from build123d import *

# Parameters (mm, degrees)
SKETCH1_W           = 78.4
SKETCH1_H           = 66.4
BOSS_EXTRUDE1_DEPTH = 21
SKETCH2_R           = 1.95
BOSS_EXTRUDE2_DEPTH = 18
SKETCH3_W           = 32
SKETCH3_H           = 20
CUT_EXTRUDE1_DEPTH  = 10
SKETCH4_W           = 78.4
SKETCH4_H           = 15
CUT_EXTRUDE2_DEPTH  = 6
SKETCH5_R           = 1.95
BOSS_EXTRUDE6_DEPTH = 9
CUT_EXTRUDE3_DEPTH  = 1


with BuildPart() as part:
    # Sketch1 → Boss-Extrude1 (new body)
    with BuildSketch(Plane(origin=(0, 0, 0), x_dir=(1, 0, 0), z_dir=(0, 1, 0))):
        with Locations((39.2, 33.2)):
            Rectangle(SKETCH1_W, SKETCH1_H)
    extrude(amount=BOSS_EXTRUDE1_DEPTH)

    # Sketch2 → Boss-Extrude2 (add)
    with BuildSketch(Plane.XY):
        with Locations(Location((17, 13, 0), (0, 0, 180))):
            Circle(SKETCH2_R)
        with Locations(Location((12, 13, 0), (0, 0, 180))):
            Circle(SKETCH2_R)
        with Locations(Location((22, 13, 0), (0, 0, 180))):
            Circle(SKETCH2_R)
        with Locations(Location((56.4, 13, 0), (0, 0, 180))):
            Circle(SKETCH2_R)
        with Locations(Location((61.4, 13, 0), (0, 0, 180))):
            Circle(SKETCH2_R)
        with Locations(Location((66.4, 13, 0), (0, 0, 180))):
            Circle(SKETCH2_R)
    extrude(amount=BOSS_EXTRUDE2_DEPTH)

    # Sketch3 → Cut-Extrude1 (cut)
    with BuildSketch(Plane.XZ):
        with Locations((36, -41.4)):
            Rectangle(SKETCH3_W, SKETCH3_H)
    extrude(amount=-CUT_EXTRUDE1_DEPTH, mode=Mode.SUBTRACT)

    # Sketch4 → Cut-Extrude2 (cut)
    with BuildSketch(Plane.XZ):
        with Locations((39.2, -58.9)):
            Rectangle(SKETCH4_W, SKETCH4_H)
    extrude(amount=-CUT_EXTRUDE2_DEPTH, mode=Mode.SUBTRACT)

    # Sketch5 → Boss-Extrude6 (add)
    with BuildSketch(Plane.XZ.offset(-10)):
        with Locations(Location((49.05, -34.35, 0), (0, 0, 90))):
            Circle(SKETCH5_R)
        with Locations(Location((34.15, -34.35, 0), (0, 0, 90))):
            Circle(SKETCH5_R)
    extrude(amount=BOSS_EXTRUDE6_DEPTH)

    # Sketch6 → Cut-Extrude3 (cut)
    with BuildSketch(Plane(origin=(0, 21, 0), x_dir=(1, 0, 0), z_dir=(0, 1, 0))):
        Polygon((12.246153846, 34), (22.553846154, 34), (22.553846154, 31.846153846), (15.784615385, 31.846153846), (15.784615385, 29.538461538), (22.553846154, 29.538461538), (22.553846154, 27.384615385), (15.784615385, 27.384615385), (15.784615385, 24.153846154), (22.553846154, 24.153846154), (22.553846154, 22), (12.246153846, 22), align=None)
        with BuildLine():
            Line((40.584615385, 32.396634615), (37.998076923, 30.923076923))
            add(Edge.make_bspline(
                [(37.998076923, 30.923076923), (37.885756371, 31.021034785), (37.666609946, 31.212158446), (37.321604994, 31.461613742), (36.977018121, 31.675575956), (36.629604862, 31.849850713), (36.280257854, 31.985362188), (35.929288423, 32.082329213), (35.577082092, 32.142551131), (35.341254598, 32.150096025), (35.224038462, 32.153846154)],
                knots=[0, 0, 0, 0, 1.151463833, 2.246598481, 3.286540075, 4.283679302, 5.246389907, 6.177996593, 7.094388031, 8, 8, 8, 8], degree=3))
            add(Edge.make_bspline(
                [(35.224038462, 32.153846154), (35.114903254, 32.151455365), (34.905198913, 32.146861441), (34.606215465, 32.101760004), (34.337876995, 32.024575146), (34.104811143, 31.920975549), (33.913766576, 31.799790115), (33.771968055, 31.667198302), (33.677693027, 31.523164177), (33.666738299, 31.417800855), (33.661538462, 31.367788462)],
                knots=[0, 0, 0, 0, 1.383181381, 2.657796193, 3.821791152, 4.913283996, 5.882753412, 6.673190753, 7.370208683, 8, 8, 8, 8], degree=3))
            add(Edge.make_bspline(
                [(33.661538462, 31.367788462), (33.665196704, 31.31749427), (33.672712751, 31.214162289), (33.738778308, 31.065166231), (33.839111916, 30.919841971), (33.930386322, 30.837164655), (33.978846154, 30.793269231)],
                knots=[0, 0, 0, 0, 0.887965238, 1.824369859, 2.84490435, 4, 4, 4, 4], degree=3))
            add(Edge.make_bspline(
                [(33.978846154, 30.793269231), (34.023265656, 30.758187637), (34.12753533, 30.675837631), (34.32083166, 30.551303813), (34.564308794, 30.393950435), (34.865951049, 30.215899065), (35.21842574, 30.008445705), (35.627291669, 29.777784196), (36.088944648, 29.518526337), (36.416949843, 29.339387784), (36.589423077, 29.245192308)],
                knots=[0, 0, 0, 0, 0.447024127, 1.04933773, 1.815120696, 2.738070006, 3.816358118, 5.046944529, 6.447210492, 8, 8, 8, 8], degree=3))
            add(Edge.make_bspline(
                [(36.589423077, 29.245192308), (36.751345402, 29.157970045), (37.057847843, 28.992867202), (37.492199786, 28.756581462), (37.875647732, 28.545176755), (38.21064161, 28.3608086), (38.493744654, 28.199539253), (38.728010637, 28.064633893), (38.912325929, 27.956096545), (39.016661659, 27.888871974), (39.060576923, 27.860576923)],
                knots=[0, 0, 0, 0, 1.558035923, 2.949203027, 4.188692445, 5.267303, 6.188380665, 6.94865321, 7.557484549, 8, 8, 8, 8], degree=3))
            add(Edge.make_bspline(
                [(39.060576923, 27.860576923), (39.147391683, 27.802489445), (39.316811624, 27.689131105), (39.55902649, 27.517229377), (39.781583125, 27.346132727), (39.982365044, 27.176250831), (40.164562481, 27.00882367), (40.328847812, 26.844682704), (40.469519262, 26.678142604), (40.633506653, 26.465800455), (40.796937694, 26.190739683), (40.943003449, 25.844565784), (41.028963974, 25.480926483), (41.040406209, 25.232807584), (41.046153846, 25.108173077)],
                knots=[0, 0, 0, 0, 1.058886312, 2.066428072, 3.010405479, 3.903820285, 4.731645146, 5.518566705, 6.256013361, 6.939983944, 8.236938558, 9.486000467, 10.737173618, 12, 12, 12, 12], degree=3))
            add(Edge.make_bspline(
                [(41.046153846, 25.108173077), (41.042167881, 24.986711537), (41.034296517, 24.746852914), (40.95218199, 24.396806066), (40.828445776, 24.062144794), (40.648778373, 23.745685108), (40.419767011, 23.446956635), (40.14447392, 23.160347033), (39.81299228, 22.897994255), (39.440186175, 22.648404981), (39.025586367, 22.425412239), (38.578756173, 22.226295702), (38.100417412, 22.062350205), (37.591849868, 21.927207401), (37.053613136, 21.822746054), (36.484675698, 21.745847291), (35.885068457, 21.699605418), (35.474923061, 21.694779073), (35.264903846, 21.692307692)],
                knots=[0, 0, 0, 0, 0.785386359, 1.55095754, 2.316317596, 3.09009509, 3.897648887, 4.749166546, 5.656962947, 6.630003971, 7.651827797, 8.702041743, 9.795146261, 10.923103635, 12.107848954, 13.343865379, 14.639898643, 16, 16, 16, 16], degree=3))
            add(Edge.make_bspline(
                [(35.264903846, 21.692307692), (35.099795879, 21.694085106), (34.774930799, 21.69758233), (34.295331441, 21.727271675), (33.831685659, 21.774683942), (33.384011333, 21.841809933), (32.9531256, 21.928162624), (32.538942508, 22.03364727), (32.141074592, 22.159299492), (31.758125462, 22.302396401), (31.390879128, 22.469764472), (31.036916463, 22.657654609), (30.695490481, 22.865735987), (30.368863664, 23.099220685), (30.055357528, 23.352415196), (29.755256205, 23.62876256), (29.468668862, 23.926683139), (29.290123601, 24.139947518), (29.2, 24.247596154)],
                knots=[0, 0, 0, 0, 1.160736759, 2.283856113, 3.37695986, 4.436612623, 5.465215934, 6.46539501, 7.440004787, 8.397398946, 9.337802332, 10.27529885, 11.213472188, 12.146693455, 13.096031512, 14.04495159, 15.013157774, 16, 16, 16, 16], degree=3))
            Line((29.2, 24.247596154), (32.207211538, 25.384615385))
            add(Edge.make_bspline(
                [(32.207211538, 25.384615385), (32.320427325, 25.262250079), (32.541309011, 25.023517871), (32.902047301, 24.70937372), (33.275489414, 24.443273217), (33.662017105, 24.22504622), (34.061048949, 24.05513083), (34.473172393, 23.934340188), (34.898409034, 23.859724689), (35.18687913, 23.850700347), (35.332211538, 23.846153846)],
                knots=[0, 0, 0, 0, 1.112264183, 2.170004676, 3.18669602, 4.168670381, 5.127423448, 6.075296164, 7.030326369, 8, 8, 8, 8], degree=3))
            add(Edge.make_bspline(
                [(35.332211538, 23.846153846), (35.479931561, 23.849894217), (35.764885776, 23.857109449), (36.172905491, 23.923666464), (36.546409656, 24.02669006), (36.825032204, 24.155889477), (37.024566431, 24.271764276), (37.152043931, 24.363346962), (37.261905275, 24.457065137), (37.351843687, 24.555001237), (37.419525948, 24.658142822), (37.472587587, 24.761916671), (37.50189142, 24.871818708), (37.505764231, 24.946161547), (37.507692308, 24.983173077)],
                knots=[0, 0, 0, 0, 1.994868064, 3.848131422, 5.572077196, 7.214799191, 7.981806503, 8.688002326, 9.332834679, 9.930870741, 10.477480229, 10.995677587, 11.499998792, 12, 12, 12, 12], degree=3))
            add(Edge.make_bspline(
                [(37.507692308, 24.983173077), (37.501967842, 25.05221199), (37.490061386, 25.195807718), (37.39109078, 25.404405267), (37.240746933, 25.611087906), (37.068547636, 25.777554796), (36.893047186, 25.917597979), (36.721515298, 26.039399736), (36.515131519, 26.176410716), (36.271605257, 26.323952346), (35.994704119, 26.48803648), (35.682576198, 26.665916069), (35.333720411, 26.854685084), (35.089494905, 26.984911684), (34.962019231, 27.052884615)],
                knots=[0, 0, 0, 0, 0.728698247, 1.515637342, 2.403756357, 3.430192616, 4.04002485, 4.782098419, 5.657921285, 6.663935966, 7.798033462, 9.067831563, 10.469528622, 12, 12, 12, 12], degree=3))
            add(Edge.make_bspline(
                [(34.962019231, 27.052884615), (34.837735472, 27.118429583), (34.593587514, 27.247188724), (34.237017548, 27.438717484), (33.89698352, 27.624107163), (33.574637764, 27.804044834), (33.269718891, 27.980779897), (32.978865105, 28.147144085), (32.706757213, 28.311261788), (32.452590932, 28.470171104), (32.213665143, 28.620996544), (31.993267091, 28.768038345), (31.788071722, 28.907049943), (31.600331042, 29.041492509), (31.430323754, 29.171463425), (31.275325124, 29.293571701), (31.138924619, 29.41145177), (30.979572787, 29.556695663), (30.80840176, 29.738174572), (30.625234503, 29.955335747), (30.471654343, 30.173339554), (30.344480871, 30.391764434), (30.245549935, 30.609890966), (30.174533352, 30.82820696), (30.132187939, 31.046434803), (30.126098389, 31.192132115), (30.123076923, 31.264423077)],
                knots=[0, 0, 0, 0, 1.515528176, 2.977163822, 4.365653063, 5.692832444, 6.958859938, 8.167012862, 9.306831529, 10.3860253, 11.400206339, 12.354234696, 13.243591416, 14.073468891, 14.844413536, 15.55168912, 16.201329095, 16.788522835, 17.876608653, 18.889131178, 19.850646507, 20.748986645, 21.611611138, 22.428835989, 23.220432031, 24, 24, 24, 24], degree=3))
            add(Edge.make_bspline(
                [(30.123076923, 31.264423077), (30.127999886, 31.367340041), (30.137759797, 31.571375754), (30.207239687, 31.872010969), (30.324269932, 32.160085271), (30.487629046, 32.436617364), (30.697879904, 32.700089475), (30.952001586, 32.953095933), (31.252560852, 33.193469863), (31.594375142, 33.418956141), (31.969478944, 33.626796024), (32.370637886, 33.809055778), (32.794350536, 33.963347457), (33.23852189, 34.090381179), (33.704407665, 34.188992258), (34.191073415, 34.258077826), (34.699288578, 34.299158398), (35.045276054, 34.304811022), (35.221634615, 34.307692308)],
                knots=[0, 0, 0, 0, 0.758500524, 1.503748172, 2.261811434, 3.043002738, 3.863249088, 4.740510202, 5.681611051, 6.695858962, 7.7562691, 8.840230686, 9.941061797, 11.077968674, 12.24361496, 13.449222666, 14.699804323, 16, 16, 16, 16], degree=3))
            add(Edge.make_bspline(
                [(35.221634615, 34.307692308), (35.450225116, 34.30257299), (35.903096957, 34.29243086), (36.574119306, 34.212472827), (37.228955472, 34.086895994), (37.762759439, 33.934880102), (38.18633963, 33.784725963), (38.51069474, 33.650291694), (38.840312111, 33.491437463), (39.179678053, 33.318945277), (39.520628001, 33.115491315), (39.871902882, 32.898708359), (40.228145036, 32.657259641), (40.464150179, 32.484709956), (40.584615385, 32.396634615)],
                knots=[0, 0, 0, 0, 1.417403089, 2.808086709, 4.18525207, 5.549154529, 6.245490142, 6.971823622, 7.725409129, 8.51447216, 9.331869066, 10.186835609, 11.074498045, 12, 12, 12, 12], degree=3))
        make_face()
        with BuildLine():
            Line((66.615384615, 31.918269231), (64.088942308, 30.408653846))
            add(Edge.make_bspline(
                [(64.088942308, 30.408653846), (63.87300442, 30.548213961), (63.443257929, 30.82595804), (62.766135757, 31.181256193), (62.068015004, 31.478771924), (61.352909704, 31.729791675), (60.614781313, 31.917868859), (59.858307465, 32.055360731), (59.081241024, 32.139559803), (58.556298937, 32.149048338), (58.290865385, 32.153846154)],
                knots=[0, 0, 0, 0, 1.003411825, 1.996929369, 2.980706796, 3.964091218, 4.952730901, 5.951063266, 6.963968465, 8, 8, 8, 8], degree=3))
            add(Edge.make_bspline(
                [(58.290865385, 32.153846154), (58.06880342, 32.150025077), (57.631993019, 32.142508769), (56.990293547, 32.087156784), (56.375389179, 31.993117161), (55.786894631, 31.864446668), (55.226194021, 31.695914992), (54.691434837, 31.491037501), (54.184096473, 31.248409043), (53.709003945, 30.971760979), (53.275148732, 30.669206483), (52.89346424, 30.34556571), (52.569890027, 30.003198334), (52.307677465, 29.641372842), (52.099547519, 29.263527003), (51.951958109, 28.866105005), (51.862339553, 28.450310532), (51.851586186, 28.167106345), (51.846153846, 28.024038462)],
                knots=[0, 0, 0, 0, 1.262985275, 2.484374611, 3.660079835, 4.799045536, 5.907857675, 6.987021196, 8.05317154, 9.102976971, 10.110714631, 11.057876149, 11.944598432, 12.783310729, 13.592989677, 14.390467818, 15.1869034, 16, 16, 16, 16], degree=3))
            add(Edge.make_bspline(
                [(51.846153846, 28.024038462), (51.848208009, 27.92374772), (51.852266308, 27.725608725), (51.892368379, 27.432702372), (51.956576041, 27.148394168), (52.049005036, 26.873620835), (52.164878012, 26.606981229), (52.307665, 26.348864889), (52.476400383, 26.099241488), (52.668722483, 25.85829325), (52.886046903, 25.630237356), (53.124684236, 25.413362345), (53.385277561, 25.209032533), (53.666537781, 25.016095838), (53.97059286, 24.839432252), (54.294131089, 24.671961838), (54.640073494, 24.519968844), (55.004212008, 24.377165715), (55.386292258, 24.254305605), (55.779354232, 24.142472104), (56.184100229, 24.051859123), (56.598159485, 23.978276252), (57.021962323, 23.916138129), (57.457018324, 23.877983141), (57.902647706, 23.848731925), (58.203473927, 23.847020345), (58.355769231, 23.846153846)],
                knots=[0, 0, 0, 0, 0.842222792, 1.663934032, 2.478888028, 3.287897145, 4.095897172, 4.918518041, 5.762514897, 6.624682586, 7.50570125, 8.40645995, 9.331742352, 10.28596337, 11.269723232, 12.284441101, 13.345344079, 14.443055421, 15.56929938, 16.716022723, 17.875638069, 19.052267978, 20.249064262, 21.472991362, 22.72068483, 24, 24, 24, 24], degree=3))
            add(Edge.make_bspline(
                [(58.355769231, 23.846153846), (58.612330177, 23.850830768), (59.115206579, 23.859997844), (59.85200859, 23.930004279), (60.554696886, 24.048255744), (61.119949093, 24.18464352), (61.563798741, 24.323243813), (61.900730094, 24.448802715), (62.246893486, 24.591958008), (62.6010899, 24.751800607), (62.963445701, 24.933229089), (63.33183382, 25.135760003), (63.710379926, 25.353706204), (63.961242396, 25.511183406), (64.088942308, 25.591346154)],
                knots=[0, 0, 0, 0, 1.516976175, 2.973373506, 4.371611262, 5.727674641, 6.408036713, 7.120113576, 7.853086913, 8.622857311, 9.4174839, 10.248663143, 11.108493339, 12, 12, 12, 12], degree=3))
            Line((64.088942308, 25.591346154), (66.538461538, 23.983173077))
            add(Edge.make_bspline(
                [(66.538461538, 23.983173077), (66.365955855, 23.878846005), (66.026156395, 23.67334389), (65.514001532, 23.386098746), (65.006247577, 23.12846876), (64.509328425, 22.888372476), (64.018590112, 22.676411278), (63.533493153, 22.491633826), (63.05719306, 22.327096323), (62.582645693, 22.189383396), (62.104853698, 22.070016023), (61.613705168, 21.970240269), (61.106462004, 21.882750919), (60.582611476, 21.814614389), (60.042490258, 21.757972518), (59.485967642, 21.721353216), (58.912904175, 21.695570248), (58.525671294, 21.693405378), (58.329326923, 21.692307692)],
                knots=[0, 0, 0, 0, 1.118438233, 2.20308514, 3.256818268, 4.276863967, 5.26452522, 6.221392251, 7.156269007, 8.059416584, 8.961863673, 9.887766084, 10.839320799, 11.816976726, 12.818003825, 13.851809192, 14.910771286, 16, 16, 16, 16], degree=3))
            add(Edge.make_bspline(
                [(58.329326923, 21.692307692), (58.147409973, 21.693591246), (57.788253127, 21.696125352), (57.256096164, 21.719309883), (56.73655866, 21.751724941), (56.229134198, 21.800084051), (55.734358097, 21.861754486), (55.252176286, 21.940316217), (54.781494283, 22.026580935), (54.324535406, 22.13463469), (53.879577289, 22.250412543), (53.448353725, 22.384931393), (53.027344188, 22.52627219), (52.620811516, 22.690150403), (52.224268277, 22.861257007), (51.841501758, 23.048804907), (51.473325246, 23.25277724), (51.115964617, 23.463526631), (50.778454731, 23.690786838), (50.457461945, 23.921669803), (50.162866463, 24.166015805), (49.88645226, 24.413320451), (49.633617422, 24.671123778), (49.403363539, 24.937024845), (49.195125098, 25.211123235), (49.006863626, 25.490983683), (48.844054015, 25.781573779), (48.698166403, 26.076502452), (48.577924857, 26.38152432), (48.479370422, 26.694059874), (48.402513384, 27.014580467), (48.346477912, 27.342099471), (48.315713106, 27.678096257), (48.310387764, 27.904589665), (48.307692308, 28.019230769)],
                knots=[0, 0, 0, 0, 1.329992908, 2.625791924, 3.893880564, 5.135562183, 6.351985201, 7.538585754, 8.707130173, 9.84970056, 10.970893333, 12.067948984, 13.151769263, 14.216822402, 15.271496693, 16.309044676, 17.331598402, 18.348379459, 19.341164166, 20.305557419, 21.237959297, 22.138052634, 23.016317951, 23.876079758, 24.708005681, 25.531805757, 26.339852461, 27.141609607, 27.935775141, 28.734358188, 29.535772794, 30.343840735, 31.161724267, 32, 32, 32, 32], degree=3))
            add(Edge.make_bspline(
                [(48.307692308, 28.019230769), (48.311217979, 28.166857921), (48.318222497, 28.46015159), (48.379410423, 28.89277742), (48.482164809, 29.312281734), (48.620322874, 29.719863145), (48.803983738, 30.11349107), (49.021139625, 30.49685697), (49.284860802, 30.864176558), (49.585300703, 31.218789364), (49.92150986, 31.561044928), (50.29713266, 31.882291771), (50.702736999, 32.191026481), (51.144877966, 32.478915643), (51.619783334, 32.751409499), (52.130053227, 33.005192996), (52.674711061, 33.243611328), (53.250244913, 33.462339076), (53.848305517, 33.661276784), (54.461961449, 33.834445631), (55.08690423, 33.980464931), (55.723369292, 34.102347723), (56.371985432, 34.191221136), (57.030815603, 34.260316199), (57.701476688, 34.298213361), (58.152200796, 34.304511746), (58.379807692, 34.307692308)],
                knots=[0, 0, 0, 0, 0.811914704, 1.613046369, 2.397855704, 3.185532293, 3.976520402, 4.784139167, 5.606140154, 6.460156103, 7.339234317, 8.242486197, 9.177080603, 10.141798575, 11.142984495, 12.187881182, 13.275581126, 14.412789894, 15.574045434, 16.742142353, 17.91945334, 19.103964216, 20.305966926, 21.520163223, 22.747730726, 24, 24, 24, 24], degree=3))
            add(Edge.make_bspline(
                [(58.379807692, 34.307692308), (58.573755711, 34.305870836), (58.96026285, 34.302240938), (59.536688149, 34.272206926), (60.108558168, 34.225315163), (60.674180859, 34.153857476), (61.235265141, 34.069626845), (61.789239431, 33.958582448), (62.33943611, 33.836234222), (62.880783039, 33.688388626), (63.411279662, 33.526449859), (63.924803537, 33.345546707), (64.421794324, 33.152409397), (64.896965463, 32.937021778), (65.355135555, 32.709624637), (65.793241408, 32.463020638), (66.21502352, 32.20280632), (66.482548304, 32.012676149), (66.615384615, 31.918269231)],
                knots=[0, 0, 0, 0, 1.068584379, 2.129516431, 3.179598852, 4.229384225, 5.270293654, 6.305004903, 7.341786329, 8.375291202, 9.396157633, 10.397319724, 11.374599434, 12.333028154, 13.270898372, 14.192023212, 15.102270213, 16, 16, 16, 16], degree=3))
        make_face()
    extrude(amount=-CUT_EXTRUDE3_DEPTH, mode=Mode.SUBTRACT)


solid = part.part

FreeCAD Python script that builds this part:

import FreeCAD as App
import Part
import Sketcher

doc = App.newDocument("Part")
params = doc.addObject("Spreadsheet::Sheet", "Params")
for row, (alias, value) in enumerate([
    ("sketch1_width", "78.4 mm"),
    ("sketch1_height", "66.4 mm"),
    ("pad1_length", "21 mm"),
    ("sketch2_diameter", "3.9 mm"),
    ("pad2_length", "18 mm"),
    ("sketch3_width", "32 mm"),
    ("sketch3_height", "20 mm"),
    ("pocket1_length", "10 mm"),
    ("sketch4_height", "15 mm"),
    ("sketch4_width", "78.4 mm"),
    ("pocket2_length", "6 mm"),
    ("sketch5_diameter", "3.9 mm"),
    ("pad3_length", "9 mm"),
    ("sketch6_height", "12 mm"),
    ("pocket3_length", "1 mm"),
], start=1):
    params.set(f"A{row}", alias)
    params.set(f"B{row}", "=" + value)
    params.setAlias(f"B{row}", alias)

body = doc.addObject("PartDesign::Body", "Body")

sketch1 = body.newObject("Sketcher::SketchObject", "Sketch")
sketch1.AttachmentSupport = (doc.getObject("XZ_Plane"), [""])
sketch1.MapMode = "FlatFace"
sketch1.addGeometry([
    Part.LineSegment(App.Vector(0, -66.4, 0), App.Vector(0, 0, 0)),
    Part.LineSegment(App.Vector(0, 0, 0), App.Vector(78.4, 0, 0)),
    Part.LineSegment(App.Vector(78.4, 0, 0), App.Vector(78.4, -66.4, 0)),
    Part.LineSegment(App.Vector(78.4, -66.4, 0), App.Vector(0, -66.4, 0)),
], False)
sketch1.addConstraint([
    Sketcher.Constraint("Coincident", 0, 2, 1, 1),
    Sketcher.Constraint("Coincident", 1, 2, 2, 1),
    Sketcher.Constraint("Coincident", 2, 2, 3, 1),
    Sketcher.Constraint("Coincident", 3, 2, 0, 1),
    Sketcher.Constraint("Vertical", 0),
    Sketcher.Constraint("Horizontal", 1),
    Sketcher.Constraint("Vertical", 2),
    Sketcher.Constraint("Horizontal", 3),
    Sketcher.Constraint("Coincident", 0, 2, -1, 1),
    Sketcher.Constraint("DistanceX", 1, 1, 1, 2, 78.4),
    Sketcher.Constraint("DistanceY", 0, 1, 0, 2, 66.4),
])
sketch1.setExpression("Constraints[9]", "Params.sketch1_width")
sketch1.setExpression("Constraints[10]", "Params.sketch1_height")
pad1 = body.newObject("PartDesign::Pad", "Pad")
pad1.Profile = sketch1
pad1.setExpression("Length", "Params.pad1_length")
pad1.Reversed = True

sketch2 = body.newObject("Sketcher::SketchObject", "Sketch001")
sketch2.AttachmentSupport = (doc.getObject("XY_Plane"), [""])
sketch2.MapMode = "FlatFace"
sketch2.addGeometry([
    Part.Circle(App.Vector(17, 13, 0), App.Vector(0, 0, 1), 1.95),
    Part.Circle(App.Vector(12, 13, 0), App.Vector(0, 0, 1), 1.95),
    Part.Circle(App.Vector(22, 13, 0), App.Vector(0, 0, 1), 1.95),
    Part.Circle(App.Vector(56.4, 13, 0), App.Vector(0, 0, 1), 1.95),
    Part.Circle(App.Vector(61.4, 13, 0), App.Vector(0, 0, 1), 1.95),
    Part.Circle(App.Vector(66.4, 13, 0), App.Vector(0, 0, 1), 1.95),
], False)
sketch2.addConstraint([
    Sketcher.Constraint("Equal", 0, 1),
    Sketcher.Constraint("Equal", 1, 2),
    Sketcher.Constraint("Equal", 2, 3),
    Sketcher.Constraint("Equal", 3, 4),
    Sketcher.Constraint("Equal", 4, 5),
    Sketcher.Constraint("Horizontal", 0, 3, 1, 3),
    Sketcher.Constraint("Horizontal", 1, 3, 2, 3),
    Sketcher.Constraint("Horizontal", 2, 3, 3, 3),
    Sketcher.Constraint("Horizontal", 3, 3, 4, 3),
    Sketcher.Constraint("Horizontal", 4, 3, 5, 3),
    Sketcher.Constraint("Diameter", 0, 3.9),
    Sketcher.Constraint("DistanceX", -1, 1, 0, 3, 17.0),
    Sketcher.Constraint("DistanceY", -1, 1, 0, 3, 13.0),
    Sketcher.Constraint("DistanceX", -1, 1, 1, 3, 12.0),
    Sketcher.Constraint("DistanceX", -1, 1, 2, 3, 22.0),
    Sketcher.Constraint("DistanceX", 3, 3, 4, 3, 5.0),
    Sketcher.Constraint("DistanceX", 4, 3, 5, 3, 5.0),
    Sketcher.Constraint("DistanceX", -1, 1, 3, 3, 56.4),
])
sketch2.setExpression("Constraints[10]", "Params.sketch2_diameter")
pad2 = body.newObject("PartDesign::Pad", "Pad001")
pad2.Profile = sketch2
pad2.setExpression("Length", "Params.pad2_length")

sketch3 = body.newObject("Sketcher::SketchObject", "Sketch002")
sketch3.AttachmentSupport = (doc.getObject("XZ_Plane"), [""])
sketch3.MapMode = "FlatFace"
sketch3.addGeometry([
    Part.LineSegment(App.Vector(20, -31.4, 0), App.Vector(20, -51.4, 0)),
    Part.LineSegment(App.Vector(20, -51.4, 0), App.Vector(52, -51.4, 0)),
    Part.LineSegment(App.Vector(52, -51.4, 0), App.Vector(52, -31.4, 0)),
    Part.LineSegment(App.Vector(52, -31.4, 0), App.Vector(20, -31.4, 0)),
], False)
sketch3.addConstraint([
    Sketcher.Constraint("Coincident", 0, 2, 1, 1),
    Sketcher.Constraint("Coincident", 1, 2, 2, 1),
    Sketcher.Constraint("Coincident", 2, 2, 3, 1),
    Sketcher.Constraint("Coincident", 3, 2, 0, 1),
    Sketcher.Constraint("Vertical", 0),
    Sketcher.Constraint("Horizontal", 1),
    Sketcher.Constraint("Vertical", 2),
    Sketcher.Constraint("Horizontal", 3),
    Sketcher.Constraint("DistanceX", 1, 1, 1, 2, 32.0),
    Sketcher.Constraint("DistanceY", 0, 2, 0, 1, 20.0),
    Sketcher.Constraint("DistanceX", -1, 1, 0, 2, 20.0),
    Sketcher.Constraint("DistanceY", 0, 2, -1, 1, 51.4),
])
sketch3.setExpression("Constraints[8]", "Params.sketch3_width")
sketch3.setExpression("Constraints[9]", "Params.sketch3_height")
pocket1 = body.newObject("PartDesign::Pocket", "Pocket")
pocket1.Profile = sketch3
pocket1.setExpression("Length", "Params.pocket1_length")

sketch4 = body.newObject("Sketcher::SketchObject", "Sketch003")
sketch4.AttachmentSupport = (doc.getObject("XZ_Plane"), [""])
sketch4.MapMode = "FlatFace"
sketch4.addGeometry([
    Part.LineSegment(App.Vector(0, -51.4, 0), App.Vector(0, -66.4, 0)),
    Part.LineSegment(App.Vector(0, -66.4, 0), App.Vector(78.4, -66.4, 0)),
    Part.LineSegment(App.Vector(78.4, -66.4, 0), App.Vector(78.4, -51.4, 0)),
    Part.LineSegment(App.Vector(78.4, -51.4, 0), App.Vector(0, -51.4, 0)),
], False)
sketch4.addConstraint([
    Sketcher.Constraint("Coincident", 0, 2, 1, 1),
    Sketcher.Constraint("Coincident", 1, 2, 2, 1),
    Sketcher.Constraint("Coincident", 2, 2, 3, 1),
    Sketcher.Constraint("Coincident", 3, 2, 0, 1),
    Sketcher.Constraint("Vertical", 0),
    Sketcher.Constraint("Horizontal", 1),
    Sketcher.Constraint("Vertical", 2),
    Sketcher.Constraint("Horizontal", 3),
    Sketcher.Constraint("PointOnObject", 0, 2, -2),
    Sketcher.Constraint("DistanceY", 0, 2, 0, 1, 15.0),
    Sketcher.Constraint("DistanceX", 1, 1, 1, 2, 78.4),
    Sketcher.Constraint("DistanceY", 0, 2, -1, 1, 66.4),
])
sketch4.setExpression("Constraints[9]", "Params.sketch4_height")
sketch4.setExpression("Constraints[10]", "Params.sketch4_width")
pocket2 = body.newObject("PartDesign::Pocket", "Pocket001")
pocket2.Profile = sketch4
pocket2.setExpression("Length", "Params.pocket2_length")

sketch5 = body.newObject("Sketcher::SketchObject", "Sketch004")
sketch5.AttachmentSupport = (doc.getObject("XZ_Plane"), [""])
sketch5.MapMode = "FlatFace"
sketch5.AttachmentOffset = App.Placement(App.Vector(0, 0, -10), App.Rotation())
sketch5.addGeometry([
    Part.Circle(App.Vector(49.05, -34.35, 0), App.Vector(0, 0, 1), 1.95),
    Part.Circle(App.Vector(34.15, -34.35, 0), App.Vector(0, 0, 1), 1.95),
], False)
sketch5.addConstraint([
    Sketcher.Constraint("Equal", 0, 1),
    Sketcher.Constraint("Horizontal", 0, 3, 1, 3),
    Sketcher.Constraint("Diameter", 0, 3.9),
    Sketcher.Constraint("DistanceX", 1, 3, 0, 3, 14.9),
    Sketcher.Constraint("DistanceX", -1, 1, 0, 3, 49.05),
    Sketcher.Constraint("DistanceY", 0, 3, -1, 1, 34.35),
])
sketch5.setExpression("Constraints[2]", "Params.sketch5_diameter")
pad3 = body.newObject("PartDesign::Pad", "Pad002")
pad3.Profile = sketch5
pad3.setExpression("Length", "Params.pad3_length")

sketch6 = body.newObject("Sketcher::SketchObject", "Sketch005")
sketch6.AttachmentSupport = (doc.getObject("XZ_Plane"), [""])
sketch6.MapMode = "FlatFace"
sketch6.AttachmentOffset = App.Placement(App.Vector(0, 0, -21), App.Rotation())
sketch6.addGeometry([
    Part.LineSegment(App.Vector(22.553846, -34, 0), App.Vector(12.246154, -34, 0)),
    Part.LineSegment(App.Vector(12.246154, -34, 0), App.Vector(12.246154, -22, 0)),
    Part.LineSegment(App.Vector(12.246154, -22, 0), App.Vector(22.553846, -22, 0)),
    Part.LineSegment(App.Vector(22.553846, -22, 0), App.Vector(22.553846, -24.153846, 0)),
    Part.LineSegment(App.Vector(22.553846, -24.153846, 0), App.Vector(15.784615, -24.153846, 0)),
    Part.LineSegment(App.Vector(15.784615, -24.153846, 0), App.Vector(15.784615, -27.384615, 0)),
    Part.LineSegment(App.Vector(15.784615, -27.384615, 0), App.Vector(22.553846, -27.384615, 0)),
    Part.LineSegment(App.Vector(22.553846, -27.384615, 0), App.Vector(22.553846, -29.538462, 0)),
    Part.LineSegment(App.Vector(22.553846, -29.538462, 0), App.Vector(15.784615, -29.538462, 0)),
    Part.LineSegment(App.Vector(15.784615, -29.538462, 0), App.Vector(15.784615, -31.846154, 0)),
    Part.LineSegment(App.Vector(15.784615, -31.846154, 0), App.Vector(22.553846, -31.846154, 0)),
    Part.LineSegment(App.Vector(22.553846, -31.846154, 0), App.Vector(22.553846, -34, 0)),
    Part.LineSegment(App.Vector(37.998077, -30.923077, 0), App.Vector(40.584615, -32.396635, 0)),
    Part.BSplineCurve([App.Vector(35.221635, -34.307692, 0), App.Vector(35.450225, -34.302573, 0), App.Vector(35.903097, -34.292431, 0), App.Vector(36.574119, -34.212473, 0), App.Vector(37.228955, -34.086896, 0), App.Vector(37.762759, -33.93488, 0), App.Vector(38.18634, -33.784726, 0), App.Vector(38.510695, -33.650292, 0), App.Vector(38.840312, -33.491437, 0), App.Vector(39.179678, -33.318945, 0), App.Vector(39.520628, -33.115491, 0), App.Vector(39.871903, -32.898708, 0), App.Vector(40.228145, -32.65726, 0), App.Vector(40.46415, -32.48471, 0), App.Vector(40.584615, -32.396635, 0)], [4, 1, 1, 1, 1, 1, 1, 1, 1, 1, 1, 1, 4], [0, 1.417403089, 2.808086709, 4.18525207, 5.549154529, 6.245490142, 6.971823622, 7.725409129, 8.51447216, 9.331869066, 10.186835609, 11.074498045, 12], False, 3, [1, 1, 1, 1, 1, 1, 1, 1, 1, 1, 1, 1, 1, 1, 1], False),
    Part.BSplineCurve([App.Vector(30.123077, -31.264423, 0), App.Vector(30.128, -31.36734, 0), App.Vector(30.13776, -31.571376, 0), App.Vector(30.20724, -31.872011, 0), App.Vector(30.32427, -32.160085, 0), App.Vector(30.487629, -32.436617, 0), App.Vector(30.69788, -32.700089, 0), App.Vector(30.952002, -32.953096, 0), App.Vector(31.252561, -33.19347, 0), App.Vector(31.594375, -33.418956, 0), App.Vector(31.969479, -33.626796, 0), App.Vector(32.370638, -33.809056, 0), App.Vector(32.794351, -33.963347, 0), App.Vector(33.238522, -34.090381, 0), App.Vector(33.704408, -34.188992, 0), App.Vector(34.191073, -34.258078, 0), App.Vector(34.699289, -34.299158, 0), App.Vector(35.045276, -34.304811, 0), App.Vector(35.221635, -34.307692, 0)], [4, 1, 1, 1, 1, 1, 1, 1, 1, 1, 1, 1, 1, 1, 1, 1, 4], [0, 0.758500524, 1.503748172, 2.261811434, 3.043002738, 3.863249088, 4.740510202, 5.681611051, 6.695858962, 7.7562691, 8.840230686, 9.941061797, 11.077968674, 12.24361496, 13.449222666, 14.699804323, 16], False, 3, [1, 1, 1, 1, 1, 1, 1, 1, 1, 1, 1, 1, 1, 1, 1, 1, 1, 1, 1], False),
    Part.BSplineCurve([App.Vector(34.962019, -27.052885, 0), App.Vector(34.837735, -27.11843, 0), App.Vector(34.593588, -27.247189, 0), App.Vector(34.237018, -27.438717, 0), App.Vector(33.896984, -27.624107, 0), App.Vector(33.574638, -27.804045, 0), App.Vector(33.269719, -27.98078, 0), App.Vector(32.978865, -28.147144, 0), App.Vector(32.706757, -28.311262, 0), App.Vector(32.452591, -28.470171, 0), App.Vector(32.213665, -28.620997, 0), App.Vector(31.993267, -28.768038, 0), App.Vector(31.788072, -28.90705, 0), App.Vector(31.600331, -29.041493, 0), App.Vector(31.430324, -29.171463, 0), App.Vector(31.275325, -29.293572, 0), App.Vector(31.138925, -29.411452, 0), App.Vector(30.979573, -29.556696, 0), App.Vector(30.808402, -29.738175, 0), App.Vector(30.625235, -29.955336, 0), App.Vector(30.471654, -30.17334, 0), App.Vector(30.344481, -30.391764, 0), App.Vector(30.24555, -30.609891, 0), App.Vector(30.174533, -30.828207, 0), App.Vector(30.132188, -31.046435, 0), App.Vector(30.126098, -31.192132, 0), App.Vector(30.123077, -31.264423, 0)], [4, 1, 1, 1, 1, 1, 1, 1, 1, 1, 1, 1, 1, 1, 1, 1, 1, 1, 1, 1, 1, 1, 1, 1, 4], [0, 1.515528176, 2.977163822, 4.365653063, 5.692832444, 6.958859938, 8.167012862, 9.306831529, 10.3860253, 11.400206339, 12.354234696, 13.243591416, 14.073468891, 14.844413536, 15.55168912, 16.201329095, 16.788522835, 17.876608653, 18.889131178, 19.850646507, 20.748986645, 21.611611138, 22.428835989, 23.220432031, 24], False, 3, [1, 1, 1, 1, 1, 1, 1, 1, 1, 1, 1, 1, 1, 1, 1, 1, 1, 1, 1, 1, 1, 1, 1, 1, 1, 1, 1], False),
    Part.BSplineCurve([App.Vector(37.507692, -24.983173, 0), App.Vector(37.501968, -25.052212, 0), App.Vector(37.490061, -25.195808, 0), App.Vector(37.391091, -25.404405, 0), App.Vector(37.240747, -25.611088, 0), App.Vector(37.068548, -25.777555, 0), App.Vector(36.893047, -25.917598, 0), App.Vector(36.721515, -26.0394, 0), App.Vector(36.515132, -26.176411, 0), App.Vector(36.271605, -26.323952, 0), App.Vector(35.994704, -26.488036, 0), App.Vector(35.682576, -26.665916, 0), App.Vector(35.33372, -26.854685, 0), App.Vector(35.089495, -26.984912, 0), App.Vector(34.962019, -27.052885, 0)], [4, 1, 1, 1, 1, 1, 1, 1, 1, 1, 1, 1, 4], [0, 0.728698247, 1.515637342, 2.403756357, 3.430192616, 4.04002485, 4.782098419, 5.657921285, 6.663935966, 7.798033462, 9.067831563, 10.469528622, 12], False, 3, [1, 1, 1, 1, 1, 1, 1, 1, 1, 1, 1, 1, 1, 1, 1], False),
    Part.BSplineCurve([App.Vector(35.332212, -23.846154, 0), App.Vector(35.479932, -23.849894, 0), App.Vector(35.764886, -23.857109, 0), App.Vector(36.172905, -23.923666, 0), App.Vector(36.54641, -24.02669, 0), App.Vector(36.825032, -24.155889, 0), App.Vector(37.024566, -24.271764, 0), App.Vector(37.152044, -24.363347, 0), App.Vector(37.261905, -24.457065, 0), App.Vector(37.351844, -24.555001, 0), App.Vector(37.419526, -24.658143, 0), App.Vector(37.472588, -24.761917, 0), App.Vector(37.501891, -24.871819, 0), App.Vector(37.505764, -24.946162, 0), App.Vector(37.507692, -24.983173, 0)], [4, 1, 1, 1, 1, 1, 1, 1, 1, 1, 1, 1, 4], [0, 1.994868064, 3.848131422, 5.572077196, 7.214799191, 7.981806503, 8.688002326, 9.332834679, 9.930870741, 10.477480229, 10.995677587, 11.499998792, 12], False, 3, [1, 1, 1, 1, 1, 1, 1, 1, 1, 1, 1, 1, 1, 1, 1], False),
    Part.BSplineCurve([App.Vector(32.207212, -25.384615, 0), App.Vector(32.320427, -25.26225, 0), App.Vector(32.541309, -25.023518, 0), App.Vector(32.902047, -24.709374, 0), App.Vector(33.275489, -24.443273, 0), App.Vector(33.662017, -24.225046, 0), App.Vector(34.061049, -24.055131, 0), App.Vector(34.473172, -23.93434, 0), App.Vector(34.898409, -23.859725, 0), App.Vector(35.186879, -23.8507, 0), App.Vector(35.332212, -23.846154, 0)], [4, 1, 1, 1, 1, 1, 1, 1, 4], [0, 1.112264183, 2.170004676, 3.18669602, 4.168670381, 5.127423448, 6.075296164, 7.030326369, 8], False, 3, [1, 1, 1, 1, 1, 1, 1, 1, 1, 1, 1], False),
    Part.LineSegment(App.Vector(32.207212, -25.384615, 0), App.Vector(29.2, -24.247596, 0)),
    Part.BSplineCurve([App.Vector(35.264904, -21.692308, 0), App.Vector(35.099796, -21.694085, 0), App.Vector(34.774931, -21.697582, 0), App.Vector(34.295331, -21.727272, 0), App.Vector(33.831686, -21.774684, 0), App.Vector(33.384011, -21.84181, 0), App.Vector(32.953126, -21.928163, 0), App.Vector(32.538943, -22.033647, 0), App.Vector(32.141075, -22.159299, 0), App.Vector(31.758125, -22.302396, 0), App.Vector(31.390879, -22.469764, 0), App.Vector(31.036916, -22.657655, 0), App.Vector(30.69549, -22.865736, 0), App.Vector(30.368864, -23.099221, 0), App.Vector(30.055358, -23.352415, 0), App.Vector(29.755256, -23.628763, 0), App.Vector(29.468669, -23.926683, 0), App.Vector(29.290124, -24.139948, 0), App.Vector(29.2, -24.247596, 0)], [4, 1, 1, 1, 1, 1, 1, 1, 1, 1, 1, 1, 1, 1, 1, 1, 4], [0, 1.160736759, 2.283856113, 3.37695986, 4.436612623, 5.465215934, 6.46539501, 7.440004787, 8.397398946, 9.337802332, 10.27529885, 11.213472188, 12.146693455, 13.096031512, 14.04495159, 15.013157774, 16], False, 3, [1, 1, 1, 1, 1, 1, 1, 1, 1, 1, 1, 1, 1, 1, 1, 1, 1, 1, 1], False),
    Part.BSplineCurve([App.Vector(41.046154, -25.108173, 0), App.Vector(41.042168, -24.986712, 0), App.Vector(41.034297, -24.746853, 0), App.Vector(40.952182, -24.396806, 0), App.Vector(40.828446, -24.062145, 0), App.Vector(40.648778, -23.745685, 0), App.Vector(40.419767, -23.446957, 0), App.Vector(40.144474, -23.160347, 0), App.Vector(39.812992, -22.897994, 0), App.Vector(39.440186, -22.648405, 0), App.Vector(39.025586, -22.425412, 0), App.Vector(38.578756, -22.226296, 0), App.Vector(38.100417, -22.06235, 0), App.Vector(37.59185, -21.927207, 0), App.Vector(37.053613, -21.822746, 0), App.Vector(36.484676, -21.745847, 0), App.Vector(35.885068, -21.699605, 0), App.Vector(35.474923, -21.694779, 0), App.Vector(35.264904, -21.692308, 0)], [4, 1, 1, 1, 1, 1, 1, 1, 1, 1, 1, 1, 1, 1, 1, 1, 4], [0, 0.785386359, 1.55095754, 2.316317596, 3.09009509, 3.897648887, 4.749166546, 5.656962947, 6.630003971, 7.651827797, 8.702041743, 9.795146261, 10.923103635, 12.107848954, 13.343865379, 14.639898643, 16], False, 3, [1, 1, 1, 1, 1, 1, 1, 1, 1, 1, 1, 1, 1, 1, 1, 1, 1, 1, 1], False),
    Part.BSplineCurve([App.Vector(39.060577, -27.860577, 0), App.Vector(39.147392, -27.802489, 0), App.Vector(39.316812, -27.689131, 0), App.Vector(39.559026, -27.517229, 0), App.Vector(39.781583, -27.346133, 0), App.Vector(39.982365, -27.176251, 0), App.Vector(40.164562, -27.008824, 0), App.Vector(40.328848, -26.844683, 0), App.Vector(40.469519, -26.678143, 0), App.Vector(40.633507, -26.4658, 0), App.Vector(40.796938, -26.19074, 0), App.Vector(40.943003, -25.844566, 0), App.Vector(41.028964, -25.480926, 0), App.Vector(41.040406, -25.232808, 0), App.Vector(41.046154, -25.108173, 0)], [4, 1, 1, 1, 1, 1, 1, 1, 1, 1, 1, 1, 4], [0, 1.058886312, 2.066428072, 3.010405479, 3.903820285, 4.731645146, 5.518566705, 6.256013361, 6.939983944, 8.236938558, 9.486000467, 10.737173618, 12], False, 3, [1, 1, 1, 1, 1, 1, 1, 1, 1, 1, 1, 1, 1, 1, 1], False),
    Part.BSplineCurve([App.Vector(36.589423, -29.245192, 0), App.Vector(36.751345, -29.15797, 0), App.Vector(37.057848, -28.992867, 0), App.Vector(37.4922, -28.756581, 0), App.Vector(37.875648, -28.545177, 0), App.Vector(38.210642, -28.360809, 0), App.Vector(38.493745, -28.199539, 0), App.Vector(38.728011, -28.064634, 0), App.Vector(38.912326, -27.956097, 0), App.Vector(39.016662, -27.888872, 0), App.Vector(39.060577, -27.860577, 0)], [4, 1, 1, 1, 1, 1, 1, 1, 4], [0, 1.558035923, 2.949203027, 4.188692445, 5.267303, 6.188380665, 6.94865321, 7.557484549, 8], False, 3, [1, 1, 1, 1, 1, 1, 1, 1, 1, 1, 1], False),
    Part.BSplineCurve([App.Vector(33.978846, -30.793269, 0), App.Vector(34.023266, -30.758188, 0), App.Vector(34.127535, -30.675838, 0), App.Vector(34.320832, -30.551304, 0), App.Vector(34.564309, -30.39395, 0), App.Vector(34.865951, -30.215899, 0), App.Vector(35.218426, -30.008446, 0), App.Vector(35.627292, -29.777784, 0), App.Vector(36.088945, -29.518526, 0), App.Vector(36.41695, -29.339388, 0), App.Vector(36.589423, -29.245192, 0)], [4, 1, 1, 1, 1, 1, 1, 1, 4], [0, 0.447024127, 1.04933773, 1.815120696, 2.738070006, 3.816358118, 5.046944529, 6.447210492, 8], False, 3, [1, 1, 1, 1, 1, 1, 1, 1, 1, 1, 1], False),
    Part.BSplineCurve([App.Vector(33.661538, -31.367788, 0), App.Vector(33.665197, -31.317494, 0), App.Vector(33.672713, -31.214162, 0), App.Vector(33.738778, -31.065166, 0), App.Vector(33.839112, -30.919842, 0), App.Vector(33.930386, -30.837165, 0), App.Vector(33.978846, -30.793269, 0)], [4, 1, 1, 1, 4], [0, 0.887965238, 1.824369859, 2.84490435, 4], False, 3, [1, 1, 1, 1, 1, 1, 1], False),
    Part.BSplineCurve([App.Vector(35.224038, -32.153846, 0), App.Vector(35.114903, -32.151455, 0), App.Vector(34.905199, -32.146861, 0), App.Vector(34.606215, -32.10176, 0), App.Vector(34.337877, -32.024575, 0), App.Vector(34.104811, -31.920976, 0), App.Vector(33.913767, -31.79979, 0), App.Vector(33.771968, -31.667198, 0), App.Vector(33.677693, -31.523164, 0), App.Vector(33.666738, -31.417801, 0), App.Vector(33.661538, -31.367788, 0)], [4, 1, 1, 1, 1, 1, 1, 1, 4], [0, 1.383181381, 2.657796193, 3.821791152, 4.913283996, 5.882753412, 6.673190753, 7.370208683, 8], False, 3, [1, 1, 1, 1, 1, 1, 1, 1, 1, 1, 1], False),
    Part.BSplineCurve([App.Vector(37.998077, -30.923077, 0), App.Vector(37.885756, -31.021035, 0), App.Vector(37.66661, -31.212158, 0), App.Vector(37.321605, -31.461614, 0), App.Vector(36.977018, -31.675576, 0), App.Vector(36.629605, -31.849851, 0), App.Vector(36.280258, -31.985362, 0), App.Vector(35.929288, -32.082329, 0), App.Vector(35.577082, -32.142551, 0), App.Vector(35.341255, -32.150096, 0), App.Vector(35.224038, -32.153846, 0)], [4, 1, 1, 1, 1, 1, 1, 1, 4], [0, 1.151463833, 2.246598481, 3.286540075, 4.283679302, 5.246389907, 6.177996593, 7.094388031, 8], False, 3, [1, 1, 1, 1, 1, 1, 1, 1, 1, 1, 1], False),
    Part.LineSegment(App.Vector(64.088942, -30.408654, 0), App.Vector(66.615385, -31.918269, 0)),
    Part.BSplineCurve([App.Vector(58.379808, -34.307692, 0), App.Vector(58.573756, -34.305871, 0), App.Vector(58.960263, -34.302241, 0), App.Vector(59.536688, -34.272207, 0), App.Vector(60.108558, -34.225315, 0), App.Vector(60.674181, -34.153857, 0), App.Vector(61.235265, -34.069627, 0), App.Vector(61.789239, -33.958582, 0), App.Vector(62.339436, -33.836234, 0), App.Vector(62.880783, -33.688389, 0), App.Vector(63.41128, -33.52645, 0), App.Vector(63.924804, -33.345547, 0), App.Vector(64.421794, -33.152409, 0), App.Vector(64.896965, -32.937022, 0), App.Vector(65.355136, -32.709625, 0), App.Vector(65.793241, -32.463021, 0), App.Vector(66.215024, -32.202806, 0), App.Vector(66.482548, -32.012676, 0), App.Vector(66.615385, -31.918269, 0)], [4, 1, 1, 1, 1, 1, 1, 1, 1, 1, 1, 1, 1, 1, 1, 1, 4], [0, 1.068584379, 2.129516431, 3.179598852, 4.229384225, 5.270293654, 6.305004903, 7.341786329, 8.375291202, 9.396157633, 10.397319724, 11.374599434, 12.333028154, 13.270898372, 14.192023212, 15.102270213, 16], False, 3, [1, 1, 1, 1, 1, 1, 1, 1, 1, 1, 1, 1, 1, 1, 1, 1, 1, 1, 1], False),
    Part.BSplineCurve([App.Vector(48.307692, -28.019231, 0), App.Vector(48.311218, -28.166858, 0), App.Vector(48.318222, -28.460152, 0), App.Vector(48.37941, -28.892777, 0), App.Vector(48.482165, -29.312282, 0), App.Vector(48.620323, -29.719863, 0), App.Vector(48.803984, -30.113491, 0), App.Vector(49.02114, -30.496857, 0), App.Vector(49.284861, -30.864177, 0), App.Vector(49.585301, -31.218789, 0), App.Vector(49.92151, -31.561045, 0), App.Vector(50.297133, -31.882292, 0), App.Vector(50.702737, -32.191026, 0), App.Vector(51.144878, -32.478916, 0), App.Vector(51.619783, -32.751409, 0), App.Vector(52.130053, -33.005193, 0), App.Vector(52.674711, -33.243611, 0), App.Vector(53.250245, -33.462339, 0), App.Vector(53.848306, -33.661277, 0), App.Vector(54.461961, -33.834446, 0), App.Vector(55.086904, -33.980465, 0), App.Vector(55.723369, -34.102348, 0), App.Vector(56.371985, -34.191221, 0), App.Vector(57.030816, -34.260316, 0), App.Vector(57.701477, -34.298213, 0), App.Vector(58.152201, -34.304512, 0), App.Vector(58.379808, -34.307692, 0)], [4, 1, 1, 1, 1, 1, 1, 1, 1, 1, 1, 1, 1, 1, 1, 1, 1, 1, 1, 1, 1, 1, 1, 1, 4], [0, 0.811914704, 1.613046369, 2.397855704, 3.185532293, 3.976520402, 4.784139167, 5.606140154, 6.460156103, 7.339234317, 8.242486197, 9.177080603, 10.141798575, 11.142984495, 12.187881182, 13.275581126, 14.412789894, 15.574045434, 16.742142353, 17.91945334, 19.103964216, 20.305966926, 21.520163223, 22.747730726, 24], False, 3, [1, 1, 1, 1, 1, 1, 1, 1, 1, 1, 1, 1, 1, 1, 1, 1, 1, 1, 1, 1, 1, 1, 1, 1, 1, 1, 1], False),
    Part.BSplineCurve([App.Vector(58.329327, -21.692308, 0), App.Vector(58.14741, -21.693591, 0), App.Vector(57.788253, -21.696125, 0), App.Vector(57.256096, -21.71931, 0), App.Vector(56.736559, -21.751725, 0), App.Vector(56.229134, -21.800084, 0), App.Vector(55.734358, -21.861754, 0), App.Vector(55.252176, -21.940316, 0), App.Vector(54.781494, -22.026581, 0), App.Vector(54.324535, -22.134635, 0), App.Vector(53.879577, -22.250413, 0), App.Vector(53.448354, -22.384931, 0), App.Vector(53.027344, -22.526272, 0), App.Vector(52.620812, -22.69015, 0), App.Vector(52.224268, -22.861257, 0), App.Vector(51.841502, -23.048805, 0), App.Vector(51.473325, -23.252777, 0), App.Vector(51.115965, -23.463527, 0), App.Vector(50.778455, -23.690787, 0), App.Vector(50.457462, -23.92167, 0), App.Vector(50.162866, -24.166016, 0), App.Vector(49.886452, -24.41332, 0), App.Vector(49.633617, -24.671124, 0), App.Vector(49.403364, -24.937025, 0), App.Vector(49.195125, -25.211123, 0), App.Vector(49.006864, -25.490984, 0), App.Vector(48.844054, -25.781574, 0), App.Vector(48.698166, -26.076502, 0), App.Vector(48.577925, -26.381524, 0), App.Vector(48.47937, -26.69406, 0), App.Vector(48.402513, -27.01458, 0), App.Vector(48.346478, -27.342099, 0), App.Vector(48.315713, -27.678096, 0), App.Vector(48.310388, -27.90459, 0), App.Vector(48.307692, -28.019231, 0)], [4, 1, 1, 1, 1, 1, 1, 1, 1, 1, 1, 1, 1, 1, 1, 1, 1, 1, 1, 1, 1, 1, 1, 1, 1, 1, 1, 1, 1, 1, 1, 1, 4], [0, 1.329992908, 2.625791924, 3.893880564, 5.135562183, 6.351985201, 7.538585754, 8.707130173, 9.84970056, 10.970893333, 12.067948984, 13.151769263, 14.216822402, 15.271496693, 16.309044676, 17.331598402, 18.348379459, 19.341164166, 20.305557419, 21.237959297, 22.138052634, 23.016317951, 23.876079758, 24.708005681, 25.531805757, 26.339852461, 27.141609607, 27.935775141, 28.734358188, 29.535772794, 30.343840735, 31.161724267, 32], False, 3, [1, 1, 1, 1, 1, 1, 1, 1, 1, 1, 1, 1, 1, 1, 1, 1, 1, 1, 1, 1, 1, 1, 1, 1, 1, 1, 1, 1, 1, 1, 1, 1, 1, 1, 1], False),
    Part.BSplineCurve([App.Vector(66.538462, -23.983173, 0), App.Vector(66.365956, -23.878846, 0), App.Vector(66.026156, -23.673344, 0), App.Vector(65.514002, -23.386099, 0), App.Vector(65.006248, -23.128469, 0), App.Vector(64.509328, -22.888372, 0), App.Vector(64.01859, -22.676411, 0), App.Vector(63.533493, -22.491634, 0), App.Vector(63.057193, -22.327096, 0), App.Vector(62.582646, -22.189383, 0), App.Vector(62.104854, -22.070016, 0), App.Vector(61.613705, -21.97024, 0), App.Vector(61.106462, -21.882751, 0), App.Vector(60.582611, -21.814614, 0), App.Vector(60.04249, -21.757973, 0), App.Vector(59.485968, -21.721353, 0), App.Vector(58.912904, -21.69557, 0), App.Vector(58.525671, -21.693405, 0), App.Vector(58.329327, -21.692308, 0)], [4, 1, 1, 1, 1, 1, 1, 1, 1, 1, 1, 1, 1, 1, 1, 1, 4], [0, 1.118438233, 2.20308514, 3.256818268, 4.276863967, 5.26452522, 6.221392251, 7.156269007, 8.059416584, 8.961863673, 9.887766084, 10.839320799, 11.816976726, 12.818003825, 13.851809192, 14.910771286, 16], False, 3, [1, 1, 1, 1, 1, 1, 1, 1, 1, 1, 1, 1, 1, 1, 1, 1, 1, 1, 1], False),
    Part.LineSegment(App.Vector(66.538462, -23.983173, 0), App.Vector(64.088942, -25.591346, 0)),
    Part.BSplineCurve([App.Vector(58.355769, -23.846154, 0), App.Vector(58.61233, -23.850831, 0), App.Vector(59.115207, -23.859998, 0), App.Vector(59.852009, -23.930004, 0), App.Vector(60.554697, -24.048256, 0), App.Vector(61.119949, -24.184644, 0), App.Vector(61.563799, -24.323244, 0), App.Vector(61.90073, -24.448803, 0), App.Vector(62.246893, -24.591958, 0), App.Vector(62.60109, -24.751801, 0), App.Vector(62.963446, -24.933229, 0), App.Vector(63.331834, -25.13576, 0), App.Vector(63.71038, -25.353706, 0), App.Vector(63.961242, -25.511183, 0), App.Vector(64.088942, -25.591346, 0)], [4, 1, 1, 1, 1, 1, 1, 1, 1, 1, 1, 1, 4], [0, 1.516976175, 2.973373506, 4.371611262, 5.727674641, 6.408036713, 7.120113576, 7.853086913, 8.622857311, 9.4174839, 10.248663143, 11.108493339, 12], False, 3, [1, 1, 1, 1, 1, 1, 1, 1, 1, 1, 1, 1, 1, 1, 1], False),
    Part.BSplineCurve([App.Vector(51.846154, -28.024038, 0), App.Vector(51.848208, -27.923748, 0), App.Vector(51.852266, -27.725609, 0), App.Vector(51.892368, -27.432702, 0), App.Vector(51.956576, -27.148394, 0), App.Vector(52.049005, -26.873621, 0), App.Vector(52.164878, -26.606981, 0), App.Vector(52.307665, -26.348865, 0), App.Vector(52.4764, -26.099241, 0), App.Vector(52.668722, -25.858293, 0), App.Vector(52.886047, -25.630237, 0), App.Vector(53.124684, -25.413362, 0), App.Vector(53.385278, -25.209033, 0), App.Vector(53.666538, -25.016096, 0), App.Vector(53.970593, -24.839432, 0), App.Vector(54.294131, -24.671962, 0), App.Vector(54.640073, -24.519969, 0), App.Vector(55.004212, -24.377166, 0), App.Vector(55.386292, -24.254306, 0), App.Vector(55.779354, -24.142472, 0), App.Vector(56.1841, -24.051859, 0), App.Vector(56.598159, -23.978276, 0), App.Vector(57.021962, -23.916138, 0), App.Vector(57.457018, -23.877983, 0), App.Vector(57.902648, -23.848732, 0), App.Vector(58.203474, -23.84702, 0), App.Vector(58.355769, -23.846154, 0)], [4, 1, 1, 1, 1, 1, 1, 1, 1, 1, 1, 1, 1, 1, 1, 1, 1, 1, 1, 1, 1, 1, 1, 1, 4], [0, 0.842222792, 1.663934032, 2.478888028, 3.287897145, 4.095897172, 4.918518041, 5.762514897, 6.624682586, 7.50570125, 8.40645995, 9.331742352, 10.28596337, 11.269723232, 12.284441101, 13.345344079, 14.443055421, 15.56929938, 16.716022723, 17.875638069, 19.052267978, 20.249064262, 21.472991362, 22.72068483, 24], False, 3, [1, 1, 1, 1, 1, 1, 1, 1, 1, 1, 1, 1, 1, 1, 1, 1, 1, 1, 1, 1, 1, 1, 1, 1, 1, 1, 1], False),
    Part.BSplineCurve([App.Vector(58.290865, -32.153846, 0), App.Vector(58.068803, -32.150025, 0), App.Vector(57.631993, -32.142509, 0), App.Vector(56.990294, -32.087157, 0), App.Vector(56.375389, -31.993117, 0), App.Vector(55.786895, -31.864447, 0), App.Vector(55.226194, -31.695915, 0), App.Vector(54.691435, -31.491038, 0), App.Vector(54.184096, -31.248409, 0), App.Vector(53.709004, -30.971761, 0), App.Vector(53.275149, -30.669206, 0), App.Vector(52.893464, -30.345566, 0), App.Vector(52.56989, -30.003198, 0), App.Vector(52.307677, -29.641373, 0), App.Vector(52.099548, -29.263527, 0), App.Vector(51.951958, -28.866105, 0), App.Vector(51.86234, -28.450311, 0), App.Vector(51.851586, -28.167106, 0), App.Vector(51.846154, -28.024038, 0)], [4, 1, 1, 1, 1, 1, 1, 1, 1, 1, 1, 1, 1, 1, 1, 1, 4], [0, 1.262985275, 2.484374611, 3.660079835, 4.799045536, 5.907857675, 6.987021196, 8.05317154, 9.102976971, 10.110714631, 11.057876149, 11.944598432, 12.783310729, 13.592989677, 14.390467818, 15.1869034, 16], False, 3, [1, 1, 1, 1, 1, 1, 1, 1, 1, 1, 1, 1, 1, 1, 1, 1, 1, 1, 1], False),
    Part.BSplineCurve([App.Vector(64.088942, -30.408654, 0), App.Vector(63.873004, -30.548214, 0), App.Vector(63.443258, -30.825958, 0), App.Vector(62.766136, -31.181256, 0), App.Vector(62.068015, -31.478772, 0), App.Vector(61.35291, -31.729792, 0), App.Vector(60.614781, -31.917869, 0), App.Vector(59.858307, -32.055361, 0), App.Vector(59.081241, -32.13956, 0), App.Vector(58.556299, -32.149048, 0), App.Vector(58.290865, -32.153846, 0)], [4, 1, 1, 1, 1, 1, 1, 1, 4], [0, 1.003411825, 1.996929369, 2.980706796, 3.964091218, 4.952730901, 5.951063266, 6.963968465, 8], False, 3, [1, 1, 1, 1, 1, 1, 1, 1, 1, 1, 1], False),
], False)
sketch6.addConstraint([
    Sketcher.Constraint("Block", 13),
    Sketcher.Constraint("Block", 14),
    Sketcher.Constraint("Block", 15),
    Sketcher.Constraint("Block", 16),
    Sketcher.Constraint("Block", 17),
    Sketcher.Constraint("Block", 18),
    Sketcher.Constraint("Block", 20),
    Sketcher.Constraint("Block", 21),
    Sketcher.Constraint("Block", 22),
    Sketcher.Constraint("Block", 23),
    Sketcher.Constraint("Block", 24),
    Sketcher.Constraint("Block", 25),
    Sketcher.Constraint("Block", 26),
    Sketcher.Constraint("Block", 27),
    Sketcher.Constraint("Block", 29),
    Sketcher.Constraint("Block", 30),
    Sketcher.Constraint("Block", 31),
    Sketcher.Constraint("Block", 32),
    Sketcher.Constraint("Block", 34),
    Sketcher.Constraint("Block", 35),
    Sketcher.Constraint("Block", 36),
    Sketcher.Constraint("Block", 37),
    Sketcher.Constraint("Coincident", 0, 2, 1, 1),
    Sketcher.Constraint("Coincident", 1, 2, 2, 1),
    Sketcher.Constraint("Coincident", 2, 2, 3, 1),
    Sketcher.Constraint("Coincident", 3, 2, 4, 1),
    Sketcher.Constraint("Coincident", 4, 2, 5, 1),
    Sketcher.Constraint("Coincident", 5, 2, 6, 1),
    Sketcher.Constraint("Coincident", 6, 2, 7, 1),
    Sketcher.Constraint("Coincident", 7, 2, 8, 1),
    Sketcher.Constraint("Coincident", 8, 2, 9, 1),
    Sketcher.Constraint("Coincident", 9, 2, 10, 1),
    Sketcher.Constraint("Coincident", 10, 2, 11, 1),
    Sketcher.Constraint("Coincident", 11, 2, 0, 1),
    Sketcher.Constraint("Coincident", 12, 2, 13, 2),
    Sketcher.Constraint("Coincident", 18, 1, 19, 1),
    Sketcher.Constraint("Coincident", 19, 2, 20, 2),
    Sketcher.Constraint("Coincident", 27, 1, 12, 1),
    Sketcher.Constraint("Coincident", 28, 2, 29, 2),
    Sketcher.Constraint("Coincident", 32, 1, 33, 1),
    Sketcher.Constraint("Coincident", 33, 2, 34, 2),
    Sketcher.Constraint("Coincident", 37, 1, 28, 1),
    Sketcher.Constraint("Horizontal", 0),
    Sketcher.Constraint("Vertical", 1),
    Sketcher.Constraint("Horizontal", 2),
    Sketcher.Constraint("Vertical", 3),
    Sketcher.Constraint("Horizontal", 4),
    Sketcher.Constraint("Vertical", 5),
    Sketcher.Constraint("Horizontal", 6),
    Sketcher.Constraint("Vertical", 7),
    Sketcher.Constraint("Horizontal", 8),
    Sketcher.Constraint("Vertical", 9),
    Sketcher.Constraint("Horizontal", 10),
    Sketcher.Constraint("Vertical", 11),
    Sketcher.Constraint("Vertical", 3, 2, 6, 2),
    Sketcher.Constraint("Vertical", 5, 2, 8, 2),
    Sketcher.Constraint("Vertical", 7, 2, 10, 2),
    Sketcher.Constraint("Equal", 3, 7),
    Sketcher.Constraint("Equal", 7, 11),
    Sketcher.Constraint("DistanceY", 1, 1, 1, 2, 12.0),
    Sketcher.Constraint("DistanceY", 0, 2, -1, 1, 34.0),
    Sketcher.Constraint("DistanceX", 4, 2, 4, 1, 6.769231),
    Sketcher.Constraint("DistanceY", 5, 2, 5, 1, 3.230769),
    Sketcher.Constraint("DistanceY", 33, 2, 3, 2, 1.4375),
    Sketcher.Constraint("DistanceX", 0, 2, 0, 1, 10.307692),
    Sketcher.Constraint("DistanceX", 10, 2, 12, 2, 18.030769),
])
sketch6.setExpression("Constraints[59]", "Params.sketch6_height")
pocket3 = body.newObject("PartDesign::Pocket", "Pocket002")
pocket3.Profile = sketch6
pocket3.setExpression("Length", "Params.pocket3_length")
pocket3.Reversed = True

doc.recompute()
